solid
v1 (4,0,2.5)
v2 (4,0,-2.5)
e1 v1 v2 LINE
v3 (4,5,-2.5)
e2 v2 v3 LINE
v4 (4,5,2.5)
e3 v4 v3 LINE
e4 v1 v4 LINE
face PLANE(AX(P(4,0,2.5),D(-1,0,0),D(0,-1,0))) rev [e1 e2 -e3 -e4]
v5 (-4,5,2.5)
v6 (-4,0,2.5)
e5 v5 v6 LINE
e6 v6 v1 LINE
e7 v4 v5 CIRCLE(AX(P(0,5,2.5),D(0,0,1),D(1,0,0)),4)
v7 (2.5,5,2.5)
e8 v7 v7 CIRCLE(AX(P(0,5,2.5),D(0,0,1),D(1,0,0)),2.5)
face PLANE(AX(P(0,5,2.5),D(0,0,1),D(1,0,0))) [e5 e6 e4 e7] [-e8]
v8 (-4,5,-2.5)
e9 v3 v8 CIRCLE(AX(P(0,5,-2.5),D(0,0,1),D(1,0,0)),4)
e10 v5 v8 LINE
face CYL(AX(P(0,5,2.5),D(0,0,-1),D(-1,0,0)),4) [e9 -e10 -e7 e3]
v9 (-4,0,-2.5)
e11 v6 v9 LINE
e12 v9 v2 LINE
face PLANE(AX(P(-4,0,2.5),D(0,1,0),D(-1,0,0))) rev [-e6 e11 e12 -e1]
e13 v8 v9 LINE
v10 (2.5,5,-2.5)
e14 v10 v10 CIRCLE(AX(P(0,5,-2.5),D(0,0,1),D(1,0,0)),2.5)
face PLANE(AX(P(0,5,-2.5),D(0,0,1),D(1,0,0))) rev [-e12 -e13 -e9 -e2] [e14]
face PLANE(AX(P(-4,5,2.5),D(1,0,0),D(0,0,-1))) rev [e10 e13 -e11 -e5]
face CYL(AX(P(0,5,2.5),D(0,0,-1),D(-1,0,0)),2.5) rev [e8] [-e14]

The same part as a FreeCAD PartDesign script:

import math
import FreeCAD as App
import Part
import Sketcher

V = App.Vector
Q = App.Units.Quantity

doc = App.newDocument("Part")
body = doc.addObject("PartDesign::Body", "Body")

# Sketch on XY plane
sketch1 = doc.addObject("Sketcher::SketchObject", "Sketch")
body.addObject(sketch1)
sketch1.AttachmentSupport = (doc.XY_Plane, [""])
sketch1.MapMode = "FlatFace"
sketch1.addGeometry(Part.LineSegment(V(-4, 0, 0), V(4, 0, 0)), False)
sketch1.addGeometry(Part.LineSegment(V(4, 0, 0), V(4, 5, 0)), False)
sketch1.addGeometry(Part.ArcOfCircle(Part.Circle(V(0, 5, 0), V(0, 0, 1), 4), math.radians(0), math.radians(180)), False)
sketch1.addGeometry(Part.LineSegment(V(-4, 5, 0), V(-4, 0, 0)), False)
sketch1.addGeometry(Part.Circle(V(0, 5, 0), V(0, 0, 1), 2.5), False)
sketch1.addConstraint(Sketcher.Constraint("Coincident", 0, 2, 1, 1))
sketch1.addConstraint(Sketcher.Constraint("Tangent", 1, 2, 2, 1))
sketch1.addConstraint(Sketcher.Constraint("Tangent", 2, 2, 3, 1))
sketch1.addConstraint(Sketcher.Constraint("Coincident", 3, 2, 0, 1))
sketch1.addConstraint(Sketcher.Constraint("Horizontal", 0))
sketch1.addConstraint(Sketcher.Constraint("Vertical", 1))
sketch1.addConstraint(Sketcher.Constraint("Vertical", 3))
sketch1.addConstraint(Sketcher.Constraint("Coincident", 4, 3, 2, 3))
sketch1.addConstraint(Sketcher.Constraint("Symmetric", 0, 2, 3, 2, -1, 1))
sketch1.addConstraint(Sketcher.Constraint("Diameter", 4, Q("5 mm")))
sketch1.addConstraint(Sketcher.Constraint("Radius", 2, Q("4 mm")))
sketch1.addConstraint(Sketcher.Constraint("DistanceY", 1, 1, 1, 2, Q("5 mm")))
pad1 = doc.addObject("PartDesign::Pad", "Pad")
body.addObject(pad1)
pad1.Profile = sketch1
pad1.Length = 5
pad1.Midplane = True

doc.recompute()
